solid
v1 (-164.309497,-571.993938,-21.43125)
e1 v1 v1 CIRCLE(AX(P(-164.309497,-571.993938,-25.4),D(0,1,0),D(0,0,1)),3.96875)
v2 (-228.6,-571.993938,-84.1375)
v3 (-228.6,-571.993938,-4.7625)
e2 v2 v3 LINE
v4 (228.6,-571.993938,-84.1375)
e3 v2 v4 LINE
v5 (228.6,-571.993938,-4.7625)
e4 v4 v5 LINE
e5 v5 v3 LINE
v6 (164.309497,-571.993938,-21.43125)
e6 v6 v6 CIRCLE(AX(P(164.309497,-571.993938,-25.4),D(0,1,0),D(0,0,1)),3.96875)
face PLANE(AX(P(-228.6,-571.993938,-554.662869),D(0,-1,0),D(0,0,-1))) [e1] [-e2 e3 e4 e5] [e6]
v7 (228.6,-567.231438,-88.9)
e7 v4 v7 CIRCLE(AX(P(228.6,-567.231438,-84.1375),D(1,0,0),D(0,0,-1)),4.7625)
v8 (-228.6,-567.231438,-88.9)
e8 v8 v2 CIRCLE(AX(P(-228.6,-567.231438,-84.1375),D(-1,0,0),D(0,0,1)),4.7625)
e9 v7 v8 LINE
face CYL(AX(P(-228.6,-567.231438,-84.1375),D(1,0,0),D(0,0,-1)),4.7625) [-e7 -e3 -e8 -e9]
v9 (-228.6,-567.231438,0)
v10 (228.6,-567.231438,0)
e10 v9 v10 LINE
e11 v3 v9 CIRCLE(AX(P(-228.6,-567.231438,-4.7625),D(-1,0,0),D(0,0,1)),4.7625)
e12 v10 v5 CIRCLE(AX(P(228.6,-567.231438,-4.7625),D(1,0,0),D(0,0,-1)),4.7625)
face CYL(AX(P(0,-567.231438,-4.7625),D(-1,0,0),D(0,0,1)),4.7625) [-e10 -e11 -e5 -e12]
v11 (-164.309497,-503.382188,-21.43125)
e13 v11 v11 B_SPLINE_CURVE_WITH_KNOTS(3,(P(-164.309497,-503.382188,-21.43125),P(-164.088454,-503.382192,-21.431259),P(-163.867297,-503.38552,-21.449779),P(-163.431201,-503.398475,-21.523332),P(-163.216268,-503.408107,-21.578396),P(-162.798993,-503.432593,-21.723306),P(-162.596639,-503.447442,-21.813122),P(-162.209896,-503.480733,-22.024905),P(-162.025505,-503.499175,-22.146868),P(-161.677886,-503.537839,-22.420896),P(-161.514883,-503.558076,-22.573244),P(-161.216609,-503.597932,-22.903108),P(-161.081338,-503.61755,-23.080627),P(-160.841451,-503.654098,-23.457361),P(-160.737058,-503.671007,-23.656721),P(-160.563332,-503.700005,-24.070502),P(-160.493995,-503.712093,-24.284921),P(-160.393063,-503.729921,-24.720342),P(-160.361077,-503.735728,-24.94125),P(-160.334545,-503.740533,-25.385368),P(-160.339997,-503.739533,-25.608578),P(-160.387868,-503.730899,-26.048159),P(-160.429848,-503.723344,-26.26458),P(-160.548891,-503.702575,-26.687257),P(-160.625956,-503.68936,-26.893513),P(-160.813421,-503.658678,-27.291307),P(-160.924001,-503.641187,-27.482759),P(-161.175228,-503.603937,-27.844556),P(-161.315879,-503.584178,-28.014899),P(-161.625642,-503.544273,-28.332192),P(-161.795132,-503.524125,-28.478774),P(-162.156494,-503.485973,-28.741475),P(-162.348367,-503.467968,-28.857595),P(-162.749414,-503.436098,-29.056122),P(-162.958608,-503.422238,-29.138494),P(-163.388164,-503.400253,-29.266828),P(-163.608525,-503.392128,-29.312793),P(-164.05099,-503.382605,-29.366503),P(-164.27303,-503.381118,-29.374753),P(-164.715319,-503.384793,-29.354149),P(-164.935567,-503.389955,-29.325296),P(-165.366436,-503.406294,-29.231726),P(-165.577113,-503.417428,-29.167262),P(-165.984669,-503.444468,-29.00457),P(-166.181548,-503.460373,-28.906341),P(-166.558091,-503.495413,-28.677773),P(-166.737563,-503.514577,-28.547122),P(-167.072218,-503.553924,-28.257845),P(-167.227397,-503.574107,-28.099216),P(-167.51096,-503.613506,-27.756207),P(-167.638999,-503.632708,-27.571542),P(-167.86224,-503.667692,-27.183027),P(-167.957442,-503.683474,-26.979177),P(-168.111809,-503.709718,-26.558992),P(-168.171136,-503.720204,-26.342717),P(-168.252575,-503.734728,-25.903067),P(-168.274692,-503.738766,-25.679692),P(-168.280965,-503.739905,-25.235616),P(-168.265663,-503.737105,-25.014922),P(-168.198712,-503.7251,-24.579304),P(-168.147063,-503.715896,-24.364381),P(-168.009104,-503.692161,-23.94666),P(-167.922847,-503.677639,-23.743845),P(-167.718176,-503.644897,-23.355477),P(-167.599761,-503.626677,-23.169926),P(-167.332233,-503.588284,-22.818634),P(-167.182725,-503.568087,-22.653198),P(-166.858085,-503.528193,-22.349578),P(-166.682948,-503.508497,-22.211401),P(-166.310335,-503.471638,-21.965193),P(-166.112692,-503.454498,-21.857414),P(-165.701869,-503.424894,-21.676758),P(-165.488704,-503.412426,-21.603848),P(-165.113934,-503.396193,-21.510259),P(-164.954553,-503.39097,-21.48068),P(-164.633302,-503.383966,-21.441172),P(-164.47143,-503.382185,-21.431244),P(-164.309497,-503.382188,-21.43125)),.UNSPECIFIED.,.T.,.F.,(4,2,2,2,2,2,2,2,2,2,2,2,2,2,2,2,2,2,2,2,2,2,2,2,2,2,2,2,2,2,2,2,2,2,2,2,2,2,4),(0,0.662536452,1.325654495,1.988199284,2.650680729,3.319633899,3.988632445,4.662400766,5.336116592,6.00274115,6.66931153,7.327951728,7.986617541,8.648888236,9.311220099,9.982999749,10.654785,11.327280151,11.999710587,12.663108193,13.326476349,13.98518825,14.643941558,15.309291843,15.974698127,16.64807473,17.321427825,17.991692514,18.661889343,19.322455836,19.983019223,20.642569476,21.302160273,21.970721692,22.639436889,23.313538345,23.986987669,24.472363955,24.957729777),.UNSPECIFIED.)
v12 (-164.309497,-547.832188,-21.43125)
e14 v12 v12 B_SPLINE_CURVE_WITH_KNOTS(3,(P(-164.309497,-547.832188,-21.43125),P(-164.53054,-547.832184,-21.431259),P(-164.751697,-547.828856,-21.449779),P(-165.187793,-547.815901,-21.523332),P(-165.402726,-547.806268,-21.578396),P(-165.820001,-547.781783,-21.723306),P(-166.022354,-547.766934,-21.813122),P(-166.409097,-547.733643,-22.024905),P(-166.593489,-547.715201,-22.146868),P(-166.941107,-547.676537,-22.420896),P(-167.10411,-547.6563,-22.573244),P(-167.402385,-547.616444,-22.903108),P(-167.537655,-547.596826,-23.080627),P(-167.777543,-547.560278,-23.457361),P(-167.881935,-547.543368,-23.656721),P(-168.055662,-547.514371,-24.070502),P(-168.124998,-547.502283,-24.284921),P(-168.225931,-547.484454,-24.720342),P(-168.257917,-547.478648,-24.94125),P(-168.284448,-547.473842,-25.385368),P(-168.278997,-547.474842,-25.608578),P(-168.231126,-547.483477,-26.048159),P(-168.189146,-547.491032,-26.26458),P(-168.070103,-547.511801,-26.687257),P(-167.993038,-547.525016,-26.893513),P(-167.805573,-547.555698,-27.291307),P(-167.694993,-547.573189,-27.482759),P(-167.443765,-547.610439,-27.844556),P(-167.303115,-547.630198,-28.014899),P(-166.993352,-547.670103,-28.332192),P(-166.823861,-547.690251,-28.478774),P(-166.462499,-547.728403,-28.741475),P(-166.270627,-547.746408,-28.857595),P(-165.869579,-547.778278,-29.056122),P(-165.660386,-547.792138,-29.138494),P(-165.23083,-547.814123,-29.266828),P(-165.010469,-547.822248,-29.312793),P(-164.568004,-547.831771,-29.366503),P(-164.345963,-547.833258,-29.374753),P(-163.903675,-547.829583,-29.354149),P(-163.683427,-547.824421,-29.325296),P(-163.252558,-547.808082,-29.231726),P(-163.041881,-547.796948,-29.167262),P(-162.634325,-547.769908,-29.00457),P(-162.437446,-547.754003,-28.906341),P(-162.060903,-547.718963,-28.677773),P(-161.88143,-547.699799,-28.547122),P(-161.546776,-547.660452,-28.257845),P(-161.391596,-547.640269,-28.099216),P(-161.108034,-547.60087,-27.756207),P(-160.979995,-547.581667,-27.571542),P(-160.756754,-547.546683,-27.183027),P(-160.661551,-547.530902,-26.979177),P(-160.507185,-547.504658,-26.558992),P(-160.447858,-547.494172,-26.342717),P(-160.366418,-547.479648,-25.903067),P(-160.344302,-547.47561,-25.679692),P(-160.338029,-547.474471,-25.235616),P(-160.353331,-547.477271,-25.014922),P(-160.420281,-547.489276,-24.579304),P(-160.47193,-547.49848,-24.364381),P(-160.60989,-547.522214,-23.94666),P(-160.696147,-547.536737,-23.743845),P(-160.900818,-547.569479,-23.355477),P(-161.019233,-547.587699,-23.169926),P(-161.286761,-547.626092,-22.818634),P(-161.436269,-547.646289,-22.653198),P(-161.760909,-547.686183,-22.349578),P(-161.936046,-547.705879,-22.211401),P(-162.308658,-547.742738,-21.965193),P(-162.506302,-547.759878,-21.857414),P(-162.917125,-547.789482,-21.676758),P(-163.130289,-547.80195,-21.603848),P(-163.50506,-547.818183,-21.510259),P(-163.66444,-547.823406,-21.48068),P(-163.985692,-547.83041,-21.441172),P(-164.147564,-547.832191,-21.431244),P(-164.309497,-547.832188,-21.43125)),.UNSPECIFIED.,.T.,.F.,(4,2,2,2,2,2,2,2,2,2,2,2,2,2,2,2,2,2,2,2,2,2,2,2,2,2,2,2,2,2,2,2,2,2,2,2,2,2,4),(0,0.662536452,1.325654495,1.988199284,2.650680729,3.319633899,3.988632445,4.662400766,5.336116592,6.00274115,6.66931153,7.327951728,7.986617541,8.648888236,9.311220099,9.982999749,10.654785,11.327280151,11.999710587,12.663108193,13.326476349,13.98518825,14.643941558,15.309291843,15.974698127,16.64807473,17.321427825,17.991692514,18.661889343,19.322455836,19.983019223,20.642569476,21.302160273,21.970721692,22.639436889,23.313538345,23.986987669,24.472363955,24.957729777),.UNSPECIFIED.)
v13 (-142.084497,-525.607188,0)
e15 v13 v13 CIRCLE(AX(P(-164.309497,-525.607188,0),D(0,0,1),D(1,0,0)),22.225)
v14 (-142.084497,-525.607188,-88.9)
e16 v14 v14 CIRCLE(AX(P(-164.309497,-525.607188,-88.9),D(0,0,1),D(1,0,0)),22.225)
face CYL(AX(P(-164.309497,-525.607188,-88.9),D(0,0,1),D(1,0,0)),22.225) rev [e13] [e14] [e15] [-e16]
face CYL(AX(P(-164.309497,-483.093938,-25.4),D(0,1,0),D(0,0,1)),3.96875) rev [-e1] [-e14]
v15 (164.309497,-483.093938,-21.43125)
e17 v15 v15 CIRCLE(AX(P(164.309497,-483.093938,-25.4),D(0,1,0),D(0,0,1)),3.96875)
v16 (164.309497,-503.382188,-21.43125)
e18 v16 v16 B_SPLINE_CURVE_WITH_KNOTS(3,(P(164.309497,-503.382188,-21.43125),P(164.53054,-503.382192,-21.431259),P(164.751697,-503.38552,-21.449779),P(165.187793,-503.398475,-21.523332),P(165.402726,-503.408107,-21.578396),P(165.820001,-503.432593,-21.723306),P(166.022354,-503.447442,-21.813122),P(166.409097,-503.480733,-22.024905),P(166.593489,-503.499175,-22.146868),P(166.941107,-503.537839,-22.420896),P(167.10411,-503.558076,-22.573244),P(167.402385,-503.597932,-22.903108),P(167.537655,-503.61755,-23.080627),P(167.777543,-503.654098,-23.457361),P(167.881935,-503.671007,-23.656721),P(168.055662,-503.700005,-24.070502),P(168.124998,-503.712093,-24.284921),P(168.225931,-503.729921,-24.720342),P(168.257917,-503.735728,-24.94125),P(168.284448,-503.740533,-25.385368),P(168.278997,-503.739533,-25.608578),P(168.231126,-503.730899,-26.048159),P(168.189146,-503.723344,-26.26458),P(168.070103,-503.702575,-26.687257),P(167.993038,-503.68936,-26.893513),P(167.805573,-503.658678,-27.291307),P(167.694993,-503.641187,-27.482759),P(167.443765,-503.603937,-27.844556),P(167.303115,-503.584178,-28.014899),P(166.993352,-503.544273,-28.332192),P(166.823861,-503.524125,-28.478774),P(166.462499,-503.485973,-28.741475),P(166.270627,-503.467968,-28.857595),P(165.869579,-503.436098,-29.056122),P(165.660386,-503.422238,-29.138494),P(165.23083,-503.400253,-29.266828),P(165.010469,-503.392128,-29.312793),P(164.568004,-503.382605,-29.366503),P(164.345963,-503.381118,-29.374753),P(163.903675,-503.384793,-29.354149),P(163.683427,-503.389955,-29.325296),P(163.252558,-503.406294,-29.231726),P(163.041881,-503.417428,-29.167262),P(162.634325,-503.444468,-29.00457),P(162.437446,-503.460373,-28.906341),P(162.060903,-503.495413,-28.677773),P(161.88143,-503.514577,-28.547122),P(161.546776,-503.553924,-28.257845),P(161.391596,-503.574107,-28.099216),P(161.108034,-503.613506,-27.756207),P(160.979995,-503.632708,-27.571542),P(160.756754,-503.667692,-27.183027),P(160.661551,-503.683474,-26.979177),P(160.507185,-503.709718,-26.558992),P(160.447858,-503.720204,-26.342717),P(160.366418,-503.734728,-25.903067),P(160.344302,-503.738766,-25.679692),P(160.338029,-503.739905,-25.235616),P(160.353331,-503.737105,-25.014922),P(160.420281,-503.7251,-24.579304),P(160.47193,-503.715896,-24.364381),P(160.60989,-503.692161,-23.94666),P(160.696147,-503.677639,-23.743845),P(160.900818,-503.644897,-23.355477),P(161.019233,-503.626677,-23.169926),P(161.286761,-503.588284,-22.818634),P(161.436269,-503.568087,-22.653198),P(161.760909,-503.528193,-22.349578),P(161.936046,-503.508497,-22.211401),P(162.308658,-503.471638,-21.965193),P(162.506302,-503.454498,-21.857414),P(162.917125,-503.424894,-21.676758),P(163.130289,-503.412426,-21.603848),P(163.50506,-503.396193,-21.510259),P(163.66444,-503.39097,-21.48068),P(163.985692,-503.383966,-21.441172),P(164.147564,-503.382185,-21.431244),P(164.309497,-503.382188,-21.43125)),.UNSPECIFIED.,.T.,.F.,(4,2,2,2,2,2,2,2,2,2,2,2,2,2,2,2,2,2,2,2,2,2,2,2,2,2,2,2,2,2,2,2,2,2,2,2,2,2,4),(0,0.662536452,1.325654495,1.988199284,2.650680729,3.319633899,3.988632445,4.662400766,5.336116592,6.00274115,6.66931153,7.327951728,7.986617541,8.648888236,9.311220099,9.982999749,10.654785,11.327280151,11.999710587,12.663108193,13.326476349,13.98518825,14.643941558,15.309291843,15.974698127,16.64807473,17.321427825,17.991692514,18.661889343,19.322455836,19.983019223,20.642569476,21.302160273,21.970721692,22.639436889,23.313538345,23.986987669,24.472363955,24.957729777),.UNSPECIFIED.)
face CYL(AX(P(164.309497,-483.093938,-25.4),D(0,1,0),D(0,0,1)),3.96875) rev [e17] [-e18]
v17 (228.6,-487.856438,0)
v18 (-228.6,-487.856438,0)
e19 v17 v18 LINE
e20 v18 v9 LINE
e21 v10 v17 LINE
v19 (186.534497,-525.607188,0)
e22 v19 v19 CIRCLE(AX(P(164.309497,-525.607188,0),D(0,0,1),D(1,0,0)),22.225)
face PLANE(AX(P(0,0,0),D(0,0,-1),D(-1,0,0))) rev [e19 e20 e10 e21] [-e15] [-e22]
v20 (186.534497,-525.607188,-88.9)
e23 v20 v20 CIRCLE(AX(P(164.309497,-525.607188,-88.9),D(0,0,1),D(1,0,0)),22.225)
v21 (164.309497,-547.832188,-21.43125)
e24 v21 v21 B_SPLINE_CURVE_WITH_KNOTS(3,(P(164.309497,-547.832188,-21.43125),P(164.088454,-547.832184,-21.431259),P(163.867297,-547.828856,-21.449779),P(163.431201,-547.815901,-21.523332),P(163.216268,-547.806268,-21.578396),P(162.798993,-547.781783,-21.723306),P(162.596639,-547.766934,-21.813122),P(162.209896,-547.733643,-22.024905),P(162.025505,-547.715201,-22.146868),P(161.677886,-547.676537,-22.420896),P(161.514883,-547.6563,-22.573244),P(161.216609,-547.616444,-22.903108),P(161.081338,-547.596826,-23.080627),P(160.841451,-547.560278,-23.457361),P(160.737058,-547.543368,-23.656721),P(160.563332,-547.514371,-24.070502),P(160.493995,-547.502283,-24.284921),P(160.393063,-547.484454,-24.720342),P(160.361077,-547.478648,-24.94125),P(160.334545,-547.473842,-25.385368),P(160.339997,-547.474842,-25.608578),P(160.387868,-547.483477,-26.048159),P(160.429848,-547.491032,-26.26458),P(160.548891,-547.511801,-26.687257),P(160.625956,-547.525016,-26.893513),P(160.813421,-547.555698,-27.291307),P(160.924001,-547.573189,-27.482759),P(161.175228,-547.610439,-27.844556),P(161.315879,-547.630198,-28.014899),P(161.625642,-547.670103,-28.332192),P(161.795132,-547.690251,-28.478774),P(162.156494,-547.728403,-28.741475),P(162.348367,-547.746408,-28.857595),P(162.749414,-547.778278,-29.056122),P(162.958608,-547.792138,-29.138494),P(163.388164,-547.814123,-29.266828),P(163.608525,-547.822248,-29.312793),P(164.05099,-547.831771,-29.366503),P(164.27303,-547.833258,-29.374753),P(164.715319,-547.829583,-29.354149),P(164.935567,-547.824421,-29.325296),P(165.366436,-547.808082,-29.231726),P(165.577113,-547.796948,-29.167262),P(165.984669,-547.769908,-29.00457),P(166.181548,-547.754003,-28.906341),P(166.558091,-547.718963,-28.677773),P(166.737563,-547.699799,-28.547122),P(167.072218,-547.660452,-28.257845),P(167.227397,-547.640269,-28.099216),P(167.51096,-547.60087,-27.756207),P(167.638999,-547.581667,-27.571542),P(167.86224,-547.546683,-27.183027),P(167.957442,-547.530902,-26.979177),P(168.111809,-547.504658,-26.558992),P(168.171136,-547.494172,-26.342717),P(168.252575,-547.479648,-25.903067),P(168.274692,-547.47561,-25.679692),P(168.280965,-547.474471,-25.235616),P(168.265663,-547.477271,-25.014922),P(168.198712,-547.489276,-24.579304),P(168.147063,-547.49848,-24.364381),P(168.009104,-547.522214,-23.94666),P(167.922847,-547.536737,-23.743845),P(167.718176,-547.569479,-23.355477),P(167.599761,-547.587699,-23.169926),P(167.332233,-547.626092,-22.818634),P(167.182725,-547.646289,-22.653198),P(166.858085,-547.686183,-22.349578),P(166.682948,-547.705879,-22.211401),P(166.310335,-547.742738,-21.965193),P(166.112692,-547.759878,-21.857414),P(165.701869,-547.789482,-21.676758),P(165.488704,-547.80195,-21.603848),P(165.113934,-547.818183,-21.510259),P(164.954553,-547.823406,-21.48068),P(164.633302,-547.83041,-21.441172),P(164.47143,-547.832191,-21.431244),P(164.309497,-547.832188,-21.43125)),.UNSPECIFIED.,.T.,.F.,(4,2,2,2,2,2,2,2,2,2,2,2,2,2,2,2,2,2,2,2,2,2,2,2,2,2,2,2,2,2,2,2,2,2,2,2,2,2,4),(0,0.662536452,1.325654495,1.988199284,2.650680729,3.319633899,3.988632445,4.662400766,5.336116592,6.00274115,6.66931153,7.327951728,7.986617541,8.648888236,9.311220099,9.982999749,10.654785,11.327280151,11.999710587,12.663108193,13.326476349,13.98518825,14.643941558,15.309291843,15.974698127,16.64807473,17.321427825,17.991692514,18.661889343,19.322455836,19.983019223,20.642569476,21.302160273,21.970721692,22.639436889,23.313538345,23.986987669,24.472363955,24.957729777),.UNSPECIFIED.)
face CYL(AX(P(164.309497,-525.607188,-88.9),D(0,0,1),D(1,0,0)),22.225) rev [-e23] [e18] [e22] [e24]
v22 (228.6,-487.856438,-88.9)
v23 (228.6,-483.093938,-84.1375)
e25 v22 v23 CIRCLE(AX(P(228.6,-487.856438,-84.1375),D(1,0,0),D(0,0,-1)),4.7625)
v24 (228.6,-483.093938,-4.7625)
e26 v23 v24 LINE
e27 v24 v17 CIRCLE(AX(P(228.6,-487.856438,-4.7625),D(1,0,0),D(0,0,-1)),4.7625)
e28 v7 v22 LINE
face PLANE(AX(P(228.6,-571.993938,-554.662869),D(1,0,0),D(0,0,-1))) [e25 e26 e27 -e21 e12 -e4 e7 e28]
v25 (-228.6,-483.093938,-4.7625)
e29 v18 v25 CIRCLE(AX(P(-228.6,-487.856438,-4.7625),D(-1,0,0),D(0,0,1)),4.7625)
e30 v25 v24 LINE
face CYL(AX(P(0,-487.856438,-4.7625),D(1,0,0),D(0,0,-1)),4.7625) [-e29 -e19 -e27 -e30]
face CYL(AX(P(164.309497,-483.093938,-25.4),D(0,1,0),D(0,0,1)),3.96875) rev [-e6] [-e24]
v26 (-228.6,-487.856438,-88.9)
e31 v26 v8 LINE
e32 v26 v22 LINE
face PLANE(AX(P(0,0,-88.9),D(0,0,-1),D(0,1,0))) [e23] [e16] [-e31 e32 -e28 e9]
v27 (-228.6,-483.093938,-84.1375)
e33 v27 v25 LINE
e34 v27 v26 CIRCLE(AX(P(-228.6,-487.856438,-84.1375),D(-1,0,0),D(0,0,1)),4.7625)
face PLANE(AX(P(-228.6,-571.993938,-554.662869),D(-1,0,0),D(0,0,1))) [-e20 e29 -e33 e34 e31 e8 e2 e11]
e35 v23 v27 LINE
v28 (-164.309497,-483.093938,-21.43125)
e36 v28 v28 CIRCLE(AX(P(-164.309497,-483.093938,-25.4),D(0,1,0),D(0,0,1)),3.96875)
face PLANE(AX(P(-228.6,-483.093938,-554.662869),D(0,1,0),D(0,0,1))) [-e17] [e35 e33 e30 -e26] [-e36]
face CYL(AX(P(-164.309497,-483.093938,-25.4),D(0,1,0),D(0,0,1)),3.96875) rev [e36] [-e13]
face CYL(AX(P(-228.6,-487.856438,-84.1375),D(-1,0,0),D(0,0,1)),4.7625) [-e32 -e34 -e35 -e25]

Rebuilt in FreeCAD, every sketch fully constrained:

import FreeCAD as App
import Part
import Sketcher
from FreeCAD import Vector
Q = App.Units.Quantity


def edges_at(feature, points):
    """Names of the edges that pass closest to the given points."""
    edges = feature.Shape.Edges
    near = lambda p: min(range(len(edges)), key=lambda i: edges[i].distToShape(Part.Vertex(*p))[0])
    return sorted({f"Edge{near(p) + 1}" for p in points})

doc = App.newDocument("Part")
body = doc.addObject("PartDesign::Body", "Body")

# Sketch on XY plane
sketch1 = doc.addObject("Sketcher::SketchObject", "Sketch")
body.addObject(sketch1)
sketch1.AttachmentSupport = (doc.XY_Plane, [""])
sketch1.MapMode = "FlatFace"
sketch1.addGeometry(Part.LineSegment(Vector(-228.6, -483.093938, 0), Vector(-228.6, -571.993938, 0)), False)
sketch1.addGeometry(Part.LineSegment(Vector(-228.6, -571.993938, 0), Vector(228.6, -571.993938, 0)), False)
sketch1.addGeometry(Part.LineSegment(Vector(228.6, -571.993938, 0), Vector(228.6, -483.093938, 0)), False)
sketch1.addGeometry(Part.LineSegment(Vector(228.6, -483.093938, 0), Vector(-228.6, -483.093938, 0)), False)
sketch1.addConstraint(Sketcher.Constraint("Coincident", 0, 2, 1, 1))
sketch1.addConstraint(Sketcher.Constraint("Coincident", 1, 2, 2, 1))
sketch1.addConstraint(Sketcher.Constraint("Coincident", 2, 2, 3, 1))
sketch1.addConstraint(Sketcher.Constraint("Coincident", 3, 2, 0, 1))
sketch1.addConstraint(Sketcher.Constraint("Vertical", 0))
sketch1.addConstraint(Sketcher.Constraint("Horizontal", 1))
sketch1.addConstraint(Sketcher.Constraint("Vertical", 2))
sketch1.addConstraint(Sketcher.Constraint("Horizontal", 3))
sketch1.addConstraint(Sketcher.Constraint("DistanceX", 1, 1, 1, 2, Q("18 in")))
sketch1.addConstraint(Sketcher.Constraint("DistanceY", 0, 2, 0, 1, Q("3.5 in")))
sketch1.addConstraint(Sketcher.Constraint("DistanceX", 0, 2, -1, 1, Q("9 in")))
sketch1.addConstraint(Sketcher.Constraint("DistanceY", 0, 2, -1, 1, 571.993938))
pad1 = doc.addObject("PartDesign::Pad", "Pad")
body.addObject(pad1)
pad1.Profile = sketch1
pad1.Length = Q("3.5 in")
pad1.Reversed = True

# Sketch on XY plane
sketch2 = doc.addObject("Sketcher::SketchObject", "Sketch001")
body.addObject(sketch2)
sketch2.AttachmentSupport = (doc.XY_Plane, [""])
sketch2.MapMode = "FlatFace"
sketch2.addGeometry(Part.Circle(Vector(164.309497, -525.607188, 0), Vector(0, 0, 1), 22.225), False)
sketch2.addGeometry(Part.Circle(Vector(-164.309497, -525.607188, 0), Vector(0, 0, 1), 22.225), False)
sketch2.addConstraint(Sketcher.Constraint("Equal", 0, 1))
sketch2.addConstraint(Sketcher.Constraint("Symmetric", 0, 3, 1, 3, -2))
sketch2.addConstraint(Sketcher.Constraint("Diameter", 0, Q("1.75 in")))
sketch2.addConstraint(Sketcher.Constraint("DistanceX", -1, 1, 0, 3, 164.309497))
sketch2.addConstraint(Sketcher.Constraint("DistanceY", 0, 3, -1, 1, 525.607188))
pocket1 = doc.addObject("PartDesign::Pocket", "Pocket")
body.addObject(pocket1)
pocket1.Profile = sketch2
pocket1.Type = "ThroughAll"

# Sketch on XZ plane
sketch3 = doc.addObject("Sketcher::SketchObject", "Sketch002")
body.addObject(sketch3)
sketch3.AttachmentSupport = (doc.XZ_Plane, [""])
sketch3.MapMode = "FlatFace"
sketch3.AttachmentOffset = App.Placement(Vector(0, 0, 483.093938), App.Rotation())
sketch3.addGeometry(Part.Circle(Vector(-164.309497, -25.4, 0), Vector(0, 0, 1), 3.96875), False)
sketch3.addGeometry(Part.Circle(Vector(164.309497, -25.4, 0), Vector(0, 0, 1), 3.96875), False)
sketch3.addConstraint(Sketcher.Constraint("Equal", 0, 1))
sketch3.addConstraint(Sketcher.Constraint("Symmetric", 0, 3, 1, 3, -2))
sketch3.addConstraint(Sketcher.Constraint("Diameter", 0, Q("0.3125 in")))
sketch3.addConstraint(Sketcher.Constraint("DistanceY", 0, 3, -1, 1, Q("1 in")))
sketch3.addConstraint(Sketcher.Constraint("DistanceX", 0, 3, -1, 1, 164.309497))
doc.recompute()
hole = doc.addObject("PartDesign::Hole", "Hole")
body.addObject(hole)
hole.Profile = sketch3
hole.ThreadType = "None"
hole.Diameter = Q("0.3125 in")
hole.DepthType = "ThroughAll"
hole.Reversed = True
doc.recompute()

fillet = doc.addObject("PartDesign::Fillet", "Fillet")
body.addObject(fillet)
fillet.Base = (hole, edges_at(hole, [
    (0, -483.094, 0),
    (0, -571.994, -88.9),
    (0, -483.094, -88.9),
    (0, -571.994, 0),
]))
fillet.Radius = Q("0.1875 in")

doc.recompute()
